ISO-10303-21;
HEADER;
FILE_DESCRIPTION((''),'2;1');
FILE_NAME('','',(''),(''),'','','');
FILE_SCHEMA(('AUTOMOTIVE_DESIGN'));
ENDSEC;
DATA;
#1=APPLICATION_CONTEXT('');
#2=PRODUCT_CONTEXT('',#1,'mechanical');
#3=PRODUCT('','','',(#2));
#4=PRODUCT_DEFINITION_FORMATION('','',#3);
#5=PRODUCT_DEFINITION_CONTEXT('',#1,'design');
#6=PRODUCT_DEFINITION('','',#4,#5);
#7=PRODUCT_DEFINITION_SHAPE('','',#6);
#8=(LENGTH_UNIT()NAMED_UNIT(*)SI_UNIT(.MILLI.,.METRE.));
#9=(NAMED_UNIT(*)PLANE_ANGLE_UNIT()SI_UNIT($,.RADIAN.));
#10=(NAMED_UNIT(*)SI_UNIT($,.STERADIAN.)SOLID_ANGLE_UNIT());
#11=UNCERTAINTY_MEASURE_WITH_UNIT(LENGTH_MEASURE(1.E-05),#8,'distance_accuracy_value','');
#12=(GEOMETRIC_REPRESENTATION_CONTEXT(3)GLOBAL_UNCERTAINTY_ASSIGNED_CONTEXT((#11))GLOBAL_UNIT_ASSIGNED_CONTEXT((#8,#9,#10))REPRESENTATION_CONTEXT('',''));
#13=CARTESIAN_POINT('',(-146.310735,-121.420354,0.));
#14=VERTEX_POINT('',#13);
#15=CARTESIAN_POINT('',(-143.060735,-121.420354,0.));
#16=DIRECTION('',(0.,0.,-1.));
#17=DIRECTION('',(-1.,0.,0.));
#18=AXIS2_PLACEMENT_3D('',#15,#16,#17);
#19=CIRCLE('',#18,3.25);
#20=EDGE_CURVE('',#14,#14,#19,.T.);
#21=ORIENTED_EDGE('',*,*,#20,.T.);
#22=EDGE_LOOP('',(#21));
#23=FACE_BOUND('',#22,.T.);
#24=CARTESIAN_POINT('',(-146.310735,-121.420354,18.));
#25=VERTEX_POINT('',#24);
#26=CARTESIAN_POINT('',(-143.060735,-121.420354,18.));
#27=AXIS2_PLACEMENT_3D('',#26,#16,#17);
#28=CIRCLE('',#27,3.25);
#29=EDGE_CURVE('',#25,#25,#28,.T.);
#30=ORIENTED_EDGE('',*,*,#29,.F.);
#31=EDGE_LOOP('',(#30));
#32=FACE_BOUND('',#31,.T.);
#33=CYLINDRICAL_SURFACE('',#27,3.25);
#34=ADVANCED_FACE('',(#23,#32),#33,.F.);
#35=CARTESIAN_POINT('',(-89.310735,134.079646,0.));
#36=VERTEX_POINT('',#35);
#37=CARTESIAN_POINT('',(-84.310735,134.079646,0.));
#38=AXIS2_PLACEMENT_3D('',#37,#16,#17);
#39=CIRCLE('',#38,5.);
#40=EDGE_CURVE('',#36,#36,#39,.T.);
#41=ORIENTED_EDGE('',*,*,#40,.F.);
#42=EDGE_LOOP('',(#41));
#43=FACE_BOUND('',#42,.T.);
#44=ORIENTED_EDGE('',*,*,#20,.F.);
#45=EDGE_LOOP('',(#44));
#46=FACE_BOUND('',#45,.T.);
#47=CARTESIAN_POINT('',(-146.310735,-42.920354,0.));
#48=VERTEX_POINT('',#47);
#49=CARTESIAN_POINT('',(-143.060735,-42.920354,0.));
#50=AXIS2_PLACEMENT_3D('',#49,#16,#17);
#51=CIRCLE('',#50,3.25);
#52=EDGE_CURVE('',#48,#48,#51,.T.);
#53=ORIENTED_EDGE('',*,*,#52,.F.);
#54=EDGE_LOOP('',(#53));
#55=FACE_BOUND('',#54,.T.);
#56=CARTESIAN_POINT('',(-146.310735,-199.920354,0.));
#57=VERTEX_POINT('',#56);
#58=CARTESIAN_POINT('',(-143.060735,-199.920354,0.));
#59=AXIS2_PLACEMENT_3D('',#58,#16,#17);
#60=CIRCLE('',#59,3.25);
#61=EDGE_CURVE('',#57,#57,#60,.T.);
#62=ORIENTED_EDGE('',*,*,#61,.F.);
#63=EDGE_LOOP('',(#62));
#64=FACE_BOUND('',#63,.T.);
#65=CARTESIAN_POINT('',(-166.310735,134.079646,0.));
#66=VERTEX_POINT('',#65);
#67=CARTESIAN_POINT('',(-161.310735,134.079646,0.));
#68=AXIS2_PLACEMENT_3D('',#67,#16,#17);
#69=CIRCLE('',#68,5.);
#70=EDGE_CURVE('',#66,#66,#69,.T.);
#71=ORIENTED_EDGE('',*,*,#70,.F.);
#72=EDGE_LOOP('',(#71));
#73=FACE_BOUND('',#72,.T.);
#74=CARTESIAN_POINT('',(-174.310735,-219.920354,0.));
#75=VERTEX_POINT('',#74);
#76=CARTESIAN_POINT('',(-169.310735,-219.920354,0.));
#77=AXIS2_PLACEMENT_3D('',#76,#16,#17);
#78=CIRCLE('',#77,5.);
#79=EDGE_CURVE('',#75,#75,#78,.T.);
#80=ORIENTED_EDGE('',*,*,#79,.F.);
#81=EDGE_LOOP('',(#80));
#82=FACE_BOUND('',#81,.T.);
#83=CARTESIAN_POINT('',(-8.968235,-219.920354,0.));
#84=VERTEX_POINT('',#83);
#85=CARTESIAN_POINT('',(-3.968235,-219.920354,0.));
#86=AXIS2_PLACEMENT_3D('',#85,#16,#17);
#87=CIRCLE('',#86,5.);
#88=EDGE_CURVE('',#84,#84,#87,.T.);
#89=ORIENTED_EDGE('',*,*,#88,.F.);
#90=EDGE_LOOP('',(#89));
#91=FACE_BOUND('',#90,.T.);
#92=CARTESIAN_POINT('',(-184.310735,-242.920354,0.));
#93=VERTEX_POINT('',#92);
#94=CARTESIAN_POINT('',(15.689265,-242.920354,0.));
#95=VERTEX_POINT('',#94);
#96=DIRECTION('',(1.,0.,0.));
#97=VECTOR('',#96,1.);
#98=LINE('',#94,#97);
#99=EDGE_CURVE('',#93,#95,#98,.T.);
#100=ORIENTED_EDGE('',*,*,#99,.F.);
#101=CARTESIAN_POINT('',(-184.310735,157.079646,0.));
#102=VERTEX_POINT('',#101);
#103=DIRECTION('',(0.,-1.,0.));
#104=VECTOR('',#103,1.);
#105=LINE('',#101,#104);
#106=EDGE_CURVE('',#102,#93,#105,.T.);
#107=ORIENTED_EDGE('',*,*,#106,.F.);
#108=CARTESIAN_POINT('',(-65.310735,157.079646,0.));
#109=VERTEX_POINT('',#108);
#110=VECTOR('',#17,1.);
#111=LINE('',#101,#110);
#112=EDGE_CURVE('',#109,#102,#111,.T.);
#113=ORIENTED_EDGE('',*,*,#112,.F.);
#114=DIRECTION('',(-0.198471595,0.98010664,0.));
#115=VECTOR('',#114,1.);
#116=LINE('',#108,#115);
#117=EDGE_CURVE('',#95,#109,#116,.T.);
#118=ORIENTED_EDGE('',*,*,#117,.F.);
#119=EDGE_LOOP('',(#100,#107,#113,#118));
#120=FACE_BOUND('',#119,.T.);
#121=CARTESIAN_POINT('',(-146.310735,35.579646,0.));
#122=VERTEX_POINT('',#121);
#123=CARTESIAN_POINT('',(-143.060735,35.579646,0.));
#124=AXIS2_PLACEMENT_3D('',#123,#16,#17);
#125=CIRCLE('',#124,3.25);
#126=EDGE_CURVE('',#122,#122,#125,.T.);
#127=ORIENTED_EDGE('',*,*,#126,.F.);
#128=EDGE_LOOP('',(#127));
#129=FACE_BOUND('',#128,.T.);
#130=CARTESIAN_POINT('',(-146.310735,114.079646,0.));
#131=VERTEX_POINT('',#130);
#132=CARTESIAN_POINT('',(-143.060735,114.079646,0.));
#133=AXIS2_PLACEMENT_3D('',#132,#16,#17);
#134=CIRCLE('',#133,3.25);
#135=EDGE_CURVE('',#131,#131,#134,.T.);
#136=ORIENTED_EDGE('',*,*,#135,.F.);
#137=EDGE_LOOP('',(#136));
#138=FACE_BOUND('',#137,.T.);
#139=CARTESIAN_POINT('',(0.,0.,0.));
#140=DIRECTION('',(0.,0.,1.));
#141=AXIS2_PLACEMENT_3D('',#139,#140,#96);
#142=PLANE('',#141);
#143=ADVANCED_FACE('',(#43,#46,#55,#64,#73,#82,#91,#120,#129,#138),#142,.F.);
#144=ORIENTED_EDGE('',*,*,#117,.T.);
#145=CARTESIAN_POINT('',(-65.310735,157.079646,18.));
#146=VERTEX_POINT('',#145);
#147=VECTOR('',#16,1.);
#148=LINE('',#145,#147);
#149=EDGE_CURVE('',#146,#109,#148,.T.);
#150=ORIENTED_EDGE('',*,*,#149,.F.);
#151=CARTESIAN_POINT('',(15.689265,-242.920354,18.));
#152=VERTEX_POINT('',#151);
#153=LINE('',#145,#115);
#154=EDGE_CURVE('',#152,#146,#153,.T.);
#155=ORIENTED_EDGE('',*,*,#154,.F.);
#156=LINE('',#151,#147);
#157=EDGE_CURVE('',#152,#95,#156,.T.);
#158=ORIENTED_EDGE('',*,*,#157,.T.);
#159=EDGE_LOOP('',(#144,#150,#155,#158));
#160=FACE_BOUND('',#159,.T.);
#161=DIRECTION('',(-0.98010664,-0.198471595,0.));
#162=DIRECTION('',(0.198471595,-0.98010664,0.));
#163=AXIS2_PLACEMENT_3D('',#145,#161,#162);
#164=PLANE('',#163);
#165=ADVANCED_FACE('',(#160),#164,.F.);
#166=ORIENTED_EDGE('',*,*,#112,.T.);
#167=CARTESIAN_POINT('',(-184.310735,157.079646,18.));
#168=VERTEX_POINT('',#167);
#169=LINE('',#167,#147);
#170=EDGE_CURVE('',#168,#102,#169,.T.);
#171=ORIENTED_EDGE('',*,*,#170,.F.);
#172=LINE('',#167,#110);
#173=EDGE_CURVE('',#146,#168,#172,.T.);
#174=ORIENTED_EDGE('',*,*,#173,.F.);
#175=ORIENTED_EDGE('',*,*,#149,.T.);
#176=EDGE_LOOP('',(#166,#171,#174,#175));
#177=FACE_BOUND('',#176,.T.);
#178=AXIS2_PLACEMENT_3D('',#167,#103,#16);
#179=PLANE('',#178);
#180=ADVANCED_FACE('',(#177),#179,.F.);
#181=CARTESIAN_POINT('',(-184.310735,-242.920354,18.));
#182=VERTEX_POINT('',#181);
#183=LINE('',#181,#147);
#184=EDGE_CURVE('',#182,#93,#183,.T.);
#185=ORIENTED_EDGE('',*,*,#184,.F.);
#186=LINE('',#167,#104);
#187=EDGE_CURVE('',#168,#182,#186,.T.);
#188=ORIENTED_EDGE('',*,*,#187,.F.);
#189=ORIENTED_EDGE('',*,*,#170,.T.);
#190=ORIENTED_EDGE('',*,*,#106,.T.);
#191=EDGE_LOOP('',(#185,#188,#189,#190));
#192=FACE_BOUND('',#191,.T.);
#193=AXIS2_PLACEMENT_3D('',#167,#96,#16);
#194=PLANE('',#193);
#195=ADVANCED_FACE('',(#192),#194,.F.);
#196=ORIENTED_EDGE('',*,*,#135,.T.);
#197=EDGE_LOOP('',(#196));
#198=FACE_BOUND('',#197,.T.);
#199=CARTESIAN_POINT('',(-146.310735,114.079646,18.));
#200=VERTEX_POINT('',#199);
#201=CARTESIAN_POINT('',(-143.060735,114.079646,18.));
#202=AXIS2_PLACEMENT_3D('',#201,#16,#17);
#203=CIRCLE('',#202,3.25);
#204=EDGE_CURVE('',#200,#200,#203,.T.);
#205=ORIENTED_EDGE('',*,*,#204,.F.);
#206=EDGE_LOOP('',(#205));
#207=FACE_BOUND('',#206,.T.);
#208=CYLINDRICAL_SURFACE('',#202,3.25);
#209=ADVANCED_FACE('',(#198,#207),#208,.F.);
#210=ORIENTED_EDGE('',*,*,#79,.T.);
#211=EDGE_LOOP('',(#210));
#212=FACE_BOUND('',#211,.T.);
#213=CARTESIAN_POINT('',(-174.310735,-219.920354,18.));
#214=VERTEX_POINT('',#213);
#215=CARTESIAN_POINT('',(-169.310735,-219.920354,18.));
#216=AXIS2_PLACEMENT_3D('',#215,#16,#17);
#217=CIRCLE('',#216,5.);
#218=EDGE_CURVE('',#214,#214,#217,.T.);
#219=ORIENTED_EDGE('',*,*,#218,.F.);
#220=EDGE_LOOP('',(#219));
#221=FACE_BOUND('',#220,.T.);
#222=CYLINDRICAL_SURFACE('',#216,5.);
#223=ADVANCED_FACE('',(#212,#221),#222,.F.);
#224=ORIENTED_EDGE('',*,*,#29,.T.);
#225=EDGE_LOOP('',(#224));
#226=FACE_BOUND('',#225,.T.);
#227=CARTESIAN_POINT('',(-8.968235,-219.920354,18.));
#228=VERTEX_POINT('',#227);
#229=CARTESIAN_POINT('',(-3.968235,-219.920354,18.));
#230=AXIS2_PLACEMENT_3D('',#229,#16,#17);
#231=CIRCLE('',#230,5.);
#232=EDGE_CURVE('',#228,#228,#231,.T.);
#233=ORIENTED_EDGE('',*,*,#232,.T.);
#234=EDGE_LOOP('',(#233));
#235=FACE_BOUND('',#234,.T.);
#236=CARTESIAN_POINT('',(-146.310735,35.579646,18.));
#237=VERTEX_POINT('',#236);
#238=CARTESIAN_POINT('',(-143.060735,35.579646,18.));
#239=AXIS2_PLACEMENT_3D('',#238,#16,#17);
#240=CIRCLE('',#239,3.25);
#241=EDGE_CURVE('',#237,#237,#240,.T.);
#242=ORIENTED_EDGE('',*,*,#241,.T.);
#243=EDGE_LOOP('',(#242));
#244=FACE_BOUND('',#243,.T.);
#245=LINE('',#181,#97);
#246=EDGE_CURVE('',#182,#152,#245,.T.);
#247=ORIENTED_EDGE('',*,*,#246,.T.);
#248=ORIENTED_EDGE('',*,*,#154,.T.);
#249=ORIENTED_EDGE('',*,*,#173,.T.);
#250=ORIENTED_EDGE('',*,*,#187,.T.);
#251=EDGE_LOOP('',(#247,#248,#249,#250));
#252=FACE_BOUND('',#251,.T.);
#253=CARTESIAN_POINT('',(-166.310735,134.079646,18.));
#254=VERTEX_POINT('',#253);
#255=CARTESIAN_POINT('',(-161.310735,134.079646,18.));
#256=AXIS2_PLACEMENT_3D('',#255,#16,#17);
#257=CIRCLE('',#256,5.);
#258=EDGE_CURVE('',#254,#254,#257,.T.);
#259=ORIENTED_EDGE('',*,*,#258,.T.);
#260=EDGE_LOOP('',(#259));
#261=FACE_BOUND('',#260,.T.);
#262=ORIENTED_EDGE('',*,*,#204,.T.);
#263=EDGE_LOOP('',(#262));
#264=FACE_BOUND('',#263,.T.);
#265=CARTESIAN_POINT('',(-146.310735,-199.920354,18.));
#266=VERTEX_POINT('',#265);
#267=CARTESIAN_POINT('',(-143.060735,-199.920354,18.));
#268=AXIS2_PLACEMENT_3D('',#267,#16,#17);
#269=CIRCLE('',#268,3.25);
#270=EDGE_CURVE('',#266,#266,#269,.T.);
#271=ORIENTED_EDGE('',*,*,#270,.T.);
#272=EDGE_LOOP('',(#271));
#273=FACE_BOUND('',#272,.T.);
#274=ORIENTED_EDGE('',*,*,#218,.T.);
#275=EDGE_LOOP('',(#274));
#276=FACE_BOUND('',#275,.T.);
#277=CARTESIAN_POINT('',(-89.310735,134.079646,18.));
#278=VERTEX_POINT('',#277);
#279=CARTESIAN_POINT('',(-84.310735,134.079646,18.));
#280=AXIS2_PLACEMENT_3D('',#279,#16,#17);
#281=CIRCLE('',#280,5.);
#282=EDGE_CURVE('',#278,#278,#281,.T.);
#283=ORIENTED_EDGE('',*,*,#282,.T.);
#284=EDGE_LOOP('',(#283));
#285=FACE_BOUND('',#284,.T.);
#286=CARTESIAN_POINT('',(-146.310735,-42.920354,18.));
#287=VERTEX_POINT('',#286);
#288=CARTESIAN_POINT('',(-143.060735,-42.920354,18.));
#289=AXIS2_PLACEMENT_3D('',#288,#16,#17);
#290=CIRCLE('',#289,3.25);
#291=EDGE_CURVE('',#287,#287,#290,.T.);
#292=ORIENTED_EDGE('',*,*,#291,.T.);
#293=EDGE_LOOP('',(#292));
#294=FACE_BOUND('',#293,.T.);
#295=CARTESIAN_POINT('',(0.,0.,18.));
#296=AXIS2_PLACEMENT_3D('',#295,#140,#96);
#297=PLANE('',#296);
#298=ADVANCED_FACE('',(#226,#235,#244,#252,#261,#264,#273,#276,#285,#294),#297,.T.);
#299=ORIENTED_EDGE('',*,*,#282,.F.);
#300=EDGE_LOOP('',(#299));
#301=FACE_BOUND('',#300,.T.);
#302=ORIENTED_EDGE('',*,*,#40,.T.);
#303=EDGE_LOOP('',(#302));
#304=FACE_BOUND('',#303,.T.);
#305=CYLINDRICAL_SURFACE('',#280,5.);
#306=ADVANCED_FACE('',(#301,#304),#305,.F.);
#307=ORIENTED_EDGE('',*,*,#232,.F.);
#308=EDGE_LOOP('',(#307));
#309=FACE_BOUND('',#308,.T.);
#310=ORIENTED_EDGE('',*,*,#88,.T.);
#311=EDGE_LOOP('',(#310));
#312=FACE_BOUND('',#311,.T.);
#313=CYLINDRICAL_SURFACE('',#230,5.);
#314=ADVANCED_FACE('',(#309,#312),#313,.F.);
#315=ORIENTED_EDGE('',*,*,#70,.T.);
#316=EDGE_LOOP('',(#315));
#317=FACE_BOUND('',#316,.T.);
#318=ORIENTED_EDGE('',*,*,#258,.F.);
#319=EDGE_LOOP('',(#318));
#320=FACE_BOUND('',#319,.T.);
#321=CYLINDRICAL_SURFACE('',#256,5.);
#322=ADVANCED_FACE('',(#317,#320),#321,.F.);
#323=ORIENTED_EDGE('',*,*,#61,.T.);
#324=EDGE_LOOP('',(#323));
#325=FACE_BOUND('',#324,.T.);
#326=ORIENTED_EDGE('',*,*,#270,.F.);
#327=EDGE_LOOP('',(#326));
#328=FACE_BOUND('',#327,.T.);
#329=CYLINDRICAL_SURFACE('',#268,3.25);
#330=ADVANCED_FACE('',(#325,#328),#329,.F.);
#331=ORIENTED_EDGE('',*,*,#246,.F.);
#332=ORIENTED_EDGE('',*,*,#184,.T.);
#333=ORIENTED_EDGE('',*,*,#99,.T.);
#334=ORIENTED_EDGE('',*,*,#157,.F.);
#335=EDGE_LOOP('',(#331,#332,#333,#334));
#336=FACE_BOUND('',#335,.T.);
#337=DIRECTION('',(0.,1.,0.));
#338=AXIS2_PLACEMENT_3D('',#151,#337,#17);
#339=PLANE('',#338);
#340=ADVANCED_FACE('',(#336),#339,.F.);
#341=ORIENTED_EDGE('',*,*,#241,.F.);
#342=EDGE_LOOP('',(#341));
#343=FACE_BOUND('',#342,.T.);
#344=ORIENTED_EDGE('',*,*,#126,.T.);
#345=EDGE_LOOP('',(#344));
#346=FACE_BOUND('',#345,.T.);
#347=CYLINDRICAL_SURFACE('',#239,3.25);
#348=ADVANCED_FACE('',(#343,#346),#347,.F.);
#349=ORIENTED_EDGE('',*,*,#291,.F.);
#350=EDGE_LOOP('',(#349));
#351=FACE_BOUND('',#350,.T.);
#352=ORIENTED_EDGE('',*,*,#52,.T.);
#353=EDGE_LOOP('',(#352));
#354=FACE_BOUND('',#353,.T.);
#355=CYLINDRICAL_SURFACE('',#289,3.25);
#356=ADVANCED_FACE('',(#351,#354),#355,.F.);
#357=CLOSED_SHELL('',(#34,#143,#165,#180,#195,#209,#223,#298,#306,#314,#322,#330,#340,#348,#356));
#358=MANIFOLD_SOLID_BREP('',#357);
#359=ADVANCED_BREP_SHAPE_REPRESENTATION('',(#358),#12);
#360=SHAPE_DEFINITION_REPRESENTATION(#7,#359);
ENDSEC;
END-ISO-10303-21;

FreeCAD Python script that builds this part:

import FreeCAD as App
import Part
import Sketcher

V = App.Vector
Q = App.Units.Quantity


def add_polygon(sketch, points):
    """Adds a closed chain of lines whose ends are joined by coincident constraints."""
    first, n = sketch.GeometryCount, len(points)
    for a, b in zip(points, points[1:] + points[:1]):
        sketch.addGeometry(Part.LineSegment(App.Vector(*a, 0), App.Vector(*b, 0)), False)
    for i in range(n):
        sketch.addConstraint(Sketcher.Constraint("Coincident", first + i, 2, first + (i + 1) % n, 1))

doc = App.newDocument("Part")
body = doc.addObject("PartDesign::Body", "Body")

sketch1 = body.newObject("Sketcher::SketchObject", "Sketch")
sketch1.AttachmentSupport = (doc.getObject("XY_Plane"), [""])
sketch1.MapMode = "FlatFace"
add_polygon(sketch1, [(16, -243), (-65, 157), (-184, 157), (-184, -243)])
sketch1.addConstraint([
    Sketcher.Constraint("Horizontal", 1),
    Sketcher.Constraint("Vertical", 2),
    Sketcher.Constraint("Horizontal", 3),
    Sketcher.Constraint("DistanceX", 1, 2, 1, 1, Q("119 mm")),
    Sketcher.Constraint("DistanceX", 3, 1, 3, 2, Q("200 mm")),
    Sketcher.Constraint("DistanceY", 2, 2, 2, 1, Q("400 mm")),
    Sketcher.Constraint("DistanceX", 0, 2, -1, 1, Q("65.310735 mm")),
    Sketcher.Constraint("DistanceY", -1, 1, 0, 2, Q("157.079646 mm")),
])
pad1 = body.newObject("PartDesign::Pad", "Pad")
pad1.Profile = sketch1
pad1.Length = 18

sketch2 = body.newObject("Sketcher::SketchObject", "Sketch001")
sketch2.AttachmentSupport = (doc.getObject("XY_Plane"), [""])
sketch2.MapMode = "FlatFace"
sketch2.addGeometry([
    Part.Circle(V(-84.3, 134.1, 0), V(0, 0, 1), 5),
    Part.Circle(V(-161.3, 134.1, 0), V(0, 0, 1), 5),
    Part.Circle(V(-143.1, 114.1, 0), V(0, 0, 1), 3.2),
    Part.Circle(V(-143.1, 35.6, 0), V(0, 0, 1), 3.2),
    Part.Circle(V(-143.1, -42.9, 0), V(0, 0, 1), 3.2),
    Part.Circle(V(-143.1, -121.4, 0), V(0, 0, 1), 3.2),
    Part.Circle(V(-143.1, -199.9, 0), V(0, 0, 1), 3.2),
    Part.Circle(V(-169.3, -219.9, 0), V(0, 0, 1), 5),
    Part.Circle(V(-4, -219.9, 0), V(0, 0, 1), 5),
], False)
sketch2.addConstraint([
    Sketcher.Constraint("Equal", 0, 1),
    Sketcher.Constraint("Equal", 2, 3),
    Sketcher.Constraint("Equal", 3, 4),
    Sketcher.Constraint("Equal", 4, 5),
    Sketcher.Constraint("Equal", 5, 6),
    Sketcher.Constraint("Equal", 1, 7),
    Sketcher.Constraint("Equal", 7, 8),
    Sketcher.Constraint("Horizontal", 0, 3, 1, 3),
    Sketcher.Constraint("Horizontal", 7, 3, 8, 3),
    Sketcher.Constraint("Vertical", 2, 3, 3, 3),
    Sketcher.Constraint("Vertical", 3, 3, 4, 3),
    Sketcher.Constraint("Vertical", 4, 3, 5, 3),
    Sketcher.Constraint("Vertical", 5, 3, 6, 3),
    Sketcher.Constraint("Diameter", 0, Q("10 mm")),
    Sketcher.Constraint("Diameter", 2, Q("6.5 mm")),
    Sketcher.Constraint("DistanceX", 1, 3, 0, 3, Q("77 mm")),
    Sketcher.Constraint("DistanceY", 2, 3, 1, 3, Q("20 mm")),
    Sketcher.Constraint("DistanceY", 4, 3, 2, 3, Q("157 mm")),
    Sketcher.Constraint("DistanceY", 5, 3, 3, 3, Q("157 mm")),
    Sketcher.Constraint("DistanceY", 6, 3, 4, 3, Q("157 mm")),
    Sketcher.Constraint("DistanceY", 7, 3, 6, 3, Q("20 mm")),
    Sketcher.Constraint("DistanceY", 3, 3, 2, 3, Q("78.5 mm")),
    Sketcher.Constraint("DistanceX", 1, 3, 2, 3, Q("18.25 mm")),
    Sketcher.Constraint("DistanceX", 7, 3, 6, 3, Q("26.25 mm")),
    Sketcher.Constraint("DistanceX", 6, 3, 8, 3, Q("139.0925 mm")),
    Sketcher.Constraint("DistanceX", 0, 3, -1, 1, Q("84.310735 mm")),
    Sketcher.Constraint("DistanceY", -1, 1, 0, 3, Q("134.079646 mm")),
])
pocket1 = body.newObject("PartDesign::Pocket", "Pocket")
pocket1.Profile = sketch2
pocket1.Type = "ThroughAll"
pocket1.Reversed = True

doc.recompute()
